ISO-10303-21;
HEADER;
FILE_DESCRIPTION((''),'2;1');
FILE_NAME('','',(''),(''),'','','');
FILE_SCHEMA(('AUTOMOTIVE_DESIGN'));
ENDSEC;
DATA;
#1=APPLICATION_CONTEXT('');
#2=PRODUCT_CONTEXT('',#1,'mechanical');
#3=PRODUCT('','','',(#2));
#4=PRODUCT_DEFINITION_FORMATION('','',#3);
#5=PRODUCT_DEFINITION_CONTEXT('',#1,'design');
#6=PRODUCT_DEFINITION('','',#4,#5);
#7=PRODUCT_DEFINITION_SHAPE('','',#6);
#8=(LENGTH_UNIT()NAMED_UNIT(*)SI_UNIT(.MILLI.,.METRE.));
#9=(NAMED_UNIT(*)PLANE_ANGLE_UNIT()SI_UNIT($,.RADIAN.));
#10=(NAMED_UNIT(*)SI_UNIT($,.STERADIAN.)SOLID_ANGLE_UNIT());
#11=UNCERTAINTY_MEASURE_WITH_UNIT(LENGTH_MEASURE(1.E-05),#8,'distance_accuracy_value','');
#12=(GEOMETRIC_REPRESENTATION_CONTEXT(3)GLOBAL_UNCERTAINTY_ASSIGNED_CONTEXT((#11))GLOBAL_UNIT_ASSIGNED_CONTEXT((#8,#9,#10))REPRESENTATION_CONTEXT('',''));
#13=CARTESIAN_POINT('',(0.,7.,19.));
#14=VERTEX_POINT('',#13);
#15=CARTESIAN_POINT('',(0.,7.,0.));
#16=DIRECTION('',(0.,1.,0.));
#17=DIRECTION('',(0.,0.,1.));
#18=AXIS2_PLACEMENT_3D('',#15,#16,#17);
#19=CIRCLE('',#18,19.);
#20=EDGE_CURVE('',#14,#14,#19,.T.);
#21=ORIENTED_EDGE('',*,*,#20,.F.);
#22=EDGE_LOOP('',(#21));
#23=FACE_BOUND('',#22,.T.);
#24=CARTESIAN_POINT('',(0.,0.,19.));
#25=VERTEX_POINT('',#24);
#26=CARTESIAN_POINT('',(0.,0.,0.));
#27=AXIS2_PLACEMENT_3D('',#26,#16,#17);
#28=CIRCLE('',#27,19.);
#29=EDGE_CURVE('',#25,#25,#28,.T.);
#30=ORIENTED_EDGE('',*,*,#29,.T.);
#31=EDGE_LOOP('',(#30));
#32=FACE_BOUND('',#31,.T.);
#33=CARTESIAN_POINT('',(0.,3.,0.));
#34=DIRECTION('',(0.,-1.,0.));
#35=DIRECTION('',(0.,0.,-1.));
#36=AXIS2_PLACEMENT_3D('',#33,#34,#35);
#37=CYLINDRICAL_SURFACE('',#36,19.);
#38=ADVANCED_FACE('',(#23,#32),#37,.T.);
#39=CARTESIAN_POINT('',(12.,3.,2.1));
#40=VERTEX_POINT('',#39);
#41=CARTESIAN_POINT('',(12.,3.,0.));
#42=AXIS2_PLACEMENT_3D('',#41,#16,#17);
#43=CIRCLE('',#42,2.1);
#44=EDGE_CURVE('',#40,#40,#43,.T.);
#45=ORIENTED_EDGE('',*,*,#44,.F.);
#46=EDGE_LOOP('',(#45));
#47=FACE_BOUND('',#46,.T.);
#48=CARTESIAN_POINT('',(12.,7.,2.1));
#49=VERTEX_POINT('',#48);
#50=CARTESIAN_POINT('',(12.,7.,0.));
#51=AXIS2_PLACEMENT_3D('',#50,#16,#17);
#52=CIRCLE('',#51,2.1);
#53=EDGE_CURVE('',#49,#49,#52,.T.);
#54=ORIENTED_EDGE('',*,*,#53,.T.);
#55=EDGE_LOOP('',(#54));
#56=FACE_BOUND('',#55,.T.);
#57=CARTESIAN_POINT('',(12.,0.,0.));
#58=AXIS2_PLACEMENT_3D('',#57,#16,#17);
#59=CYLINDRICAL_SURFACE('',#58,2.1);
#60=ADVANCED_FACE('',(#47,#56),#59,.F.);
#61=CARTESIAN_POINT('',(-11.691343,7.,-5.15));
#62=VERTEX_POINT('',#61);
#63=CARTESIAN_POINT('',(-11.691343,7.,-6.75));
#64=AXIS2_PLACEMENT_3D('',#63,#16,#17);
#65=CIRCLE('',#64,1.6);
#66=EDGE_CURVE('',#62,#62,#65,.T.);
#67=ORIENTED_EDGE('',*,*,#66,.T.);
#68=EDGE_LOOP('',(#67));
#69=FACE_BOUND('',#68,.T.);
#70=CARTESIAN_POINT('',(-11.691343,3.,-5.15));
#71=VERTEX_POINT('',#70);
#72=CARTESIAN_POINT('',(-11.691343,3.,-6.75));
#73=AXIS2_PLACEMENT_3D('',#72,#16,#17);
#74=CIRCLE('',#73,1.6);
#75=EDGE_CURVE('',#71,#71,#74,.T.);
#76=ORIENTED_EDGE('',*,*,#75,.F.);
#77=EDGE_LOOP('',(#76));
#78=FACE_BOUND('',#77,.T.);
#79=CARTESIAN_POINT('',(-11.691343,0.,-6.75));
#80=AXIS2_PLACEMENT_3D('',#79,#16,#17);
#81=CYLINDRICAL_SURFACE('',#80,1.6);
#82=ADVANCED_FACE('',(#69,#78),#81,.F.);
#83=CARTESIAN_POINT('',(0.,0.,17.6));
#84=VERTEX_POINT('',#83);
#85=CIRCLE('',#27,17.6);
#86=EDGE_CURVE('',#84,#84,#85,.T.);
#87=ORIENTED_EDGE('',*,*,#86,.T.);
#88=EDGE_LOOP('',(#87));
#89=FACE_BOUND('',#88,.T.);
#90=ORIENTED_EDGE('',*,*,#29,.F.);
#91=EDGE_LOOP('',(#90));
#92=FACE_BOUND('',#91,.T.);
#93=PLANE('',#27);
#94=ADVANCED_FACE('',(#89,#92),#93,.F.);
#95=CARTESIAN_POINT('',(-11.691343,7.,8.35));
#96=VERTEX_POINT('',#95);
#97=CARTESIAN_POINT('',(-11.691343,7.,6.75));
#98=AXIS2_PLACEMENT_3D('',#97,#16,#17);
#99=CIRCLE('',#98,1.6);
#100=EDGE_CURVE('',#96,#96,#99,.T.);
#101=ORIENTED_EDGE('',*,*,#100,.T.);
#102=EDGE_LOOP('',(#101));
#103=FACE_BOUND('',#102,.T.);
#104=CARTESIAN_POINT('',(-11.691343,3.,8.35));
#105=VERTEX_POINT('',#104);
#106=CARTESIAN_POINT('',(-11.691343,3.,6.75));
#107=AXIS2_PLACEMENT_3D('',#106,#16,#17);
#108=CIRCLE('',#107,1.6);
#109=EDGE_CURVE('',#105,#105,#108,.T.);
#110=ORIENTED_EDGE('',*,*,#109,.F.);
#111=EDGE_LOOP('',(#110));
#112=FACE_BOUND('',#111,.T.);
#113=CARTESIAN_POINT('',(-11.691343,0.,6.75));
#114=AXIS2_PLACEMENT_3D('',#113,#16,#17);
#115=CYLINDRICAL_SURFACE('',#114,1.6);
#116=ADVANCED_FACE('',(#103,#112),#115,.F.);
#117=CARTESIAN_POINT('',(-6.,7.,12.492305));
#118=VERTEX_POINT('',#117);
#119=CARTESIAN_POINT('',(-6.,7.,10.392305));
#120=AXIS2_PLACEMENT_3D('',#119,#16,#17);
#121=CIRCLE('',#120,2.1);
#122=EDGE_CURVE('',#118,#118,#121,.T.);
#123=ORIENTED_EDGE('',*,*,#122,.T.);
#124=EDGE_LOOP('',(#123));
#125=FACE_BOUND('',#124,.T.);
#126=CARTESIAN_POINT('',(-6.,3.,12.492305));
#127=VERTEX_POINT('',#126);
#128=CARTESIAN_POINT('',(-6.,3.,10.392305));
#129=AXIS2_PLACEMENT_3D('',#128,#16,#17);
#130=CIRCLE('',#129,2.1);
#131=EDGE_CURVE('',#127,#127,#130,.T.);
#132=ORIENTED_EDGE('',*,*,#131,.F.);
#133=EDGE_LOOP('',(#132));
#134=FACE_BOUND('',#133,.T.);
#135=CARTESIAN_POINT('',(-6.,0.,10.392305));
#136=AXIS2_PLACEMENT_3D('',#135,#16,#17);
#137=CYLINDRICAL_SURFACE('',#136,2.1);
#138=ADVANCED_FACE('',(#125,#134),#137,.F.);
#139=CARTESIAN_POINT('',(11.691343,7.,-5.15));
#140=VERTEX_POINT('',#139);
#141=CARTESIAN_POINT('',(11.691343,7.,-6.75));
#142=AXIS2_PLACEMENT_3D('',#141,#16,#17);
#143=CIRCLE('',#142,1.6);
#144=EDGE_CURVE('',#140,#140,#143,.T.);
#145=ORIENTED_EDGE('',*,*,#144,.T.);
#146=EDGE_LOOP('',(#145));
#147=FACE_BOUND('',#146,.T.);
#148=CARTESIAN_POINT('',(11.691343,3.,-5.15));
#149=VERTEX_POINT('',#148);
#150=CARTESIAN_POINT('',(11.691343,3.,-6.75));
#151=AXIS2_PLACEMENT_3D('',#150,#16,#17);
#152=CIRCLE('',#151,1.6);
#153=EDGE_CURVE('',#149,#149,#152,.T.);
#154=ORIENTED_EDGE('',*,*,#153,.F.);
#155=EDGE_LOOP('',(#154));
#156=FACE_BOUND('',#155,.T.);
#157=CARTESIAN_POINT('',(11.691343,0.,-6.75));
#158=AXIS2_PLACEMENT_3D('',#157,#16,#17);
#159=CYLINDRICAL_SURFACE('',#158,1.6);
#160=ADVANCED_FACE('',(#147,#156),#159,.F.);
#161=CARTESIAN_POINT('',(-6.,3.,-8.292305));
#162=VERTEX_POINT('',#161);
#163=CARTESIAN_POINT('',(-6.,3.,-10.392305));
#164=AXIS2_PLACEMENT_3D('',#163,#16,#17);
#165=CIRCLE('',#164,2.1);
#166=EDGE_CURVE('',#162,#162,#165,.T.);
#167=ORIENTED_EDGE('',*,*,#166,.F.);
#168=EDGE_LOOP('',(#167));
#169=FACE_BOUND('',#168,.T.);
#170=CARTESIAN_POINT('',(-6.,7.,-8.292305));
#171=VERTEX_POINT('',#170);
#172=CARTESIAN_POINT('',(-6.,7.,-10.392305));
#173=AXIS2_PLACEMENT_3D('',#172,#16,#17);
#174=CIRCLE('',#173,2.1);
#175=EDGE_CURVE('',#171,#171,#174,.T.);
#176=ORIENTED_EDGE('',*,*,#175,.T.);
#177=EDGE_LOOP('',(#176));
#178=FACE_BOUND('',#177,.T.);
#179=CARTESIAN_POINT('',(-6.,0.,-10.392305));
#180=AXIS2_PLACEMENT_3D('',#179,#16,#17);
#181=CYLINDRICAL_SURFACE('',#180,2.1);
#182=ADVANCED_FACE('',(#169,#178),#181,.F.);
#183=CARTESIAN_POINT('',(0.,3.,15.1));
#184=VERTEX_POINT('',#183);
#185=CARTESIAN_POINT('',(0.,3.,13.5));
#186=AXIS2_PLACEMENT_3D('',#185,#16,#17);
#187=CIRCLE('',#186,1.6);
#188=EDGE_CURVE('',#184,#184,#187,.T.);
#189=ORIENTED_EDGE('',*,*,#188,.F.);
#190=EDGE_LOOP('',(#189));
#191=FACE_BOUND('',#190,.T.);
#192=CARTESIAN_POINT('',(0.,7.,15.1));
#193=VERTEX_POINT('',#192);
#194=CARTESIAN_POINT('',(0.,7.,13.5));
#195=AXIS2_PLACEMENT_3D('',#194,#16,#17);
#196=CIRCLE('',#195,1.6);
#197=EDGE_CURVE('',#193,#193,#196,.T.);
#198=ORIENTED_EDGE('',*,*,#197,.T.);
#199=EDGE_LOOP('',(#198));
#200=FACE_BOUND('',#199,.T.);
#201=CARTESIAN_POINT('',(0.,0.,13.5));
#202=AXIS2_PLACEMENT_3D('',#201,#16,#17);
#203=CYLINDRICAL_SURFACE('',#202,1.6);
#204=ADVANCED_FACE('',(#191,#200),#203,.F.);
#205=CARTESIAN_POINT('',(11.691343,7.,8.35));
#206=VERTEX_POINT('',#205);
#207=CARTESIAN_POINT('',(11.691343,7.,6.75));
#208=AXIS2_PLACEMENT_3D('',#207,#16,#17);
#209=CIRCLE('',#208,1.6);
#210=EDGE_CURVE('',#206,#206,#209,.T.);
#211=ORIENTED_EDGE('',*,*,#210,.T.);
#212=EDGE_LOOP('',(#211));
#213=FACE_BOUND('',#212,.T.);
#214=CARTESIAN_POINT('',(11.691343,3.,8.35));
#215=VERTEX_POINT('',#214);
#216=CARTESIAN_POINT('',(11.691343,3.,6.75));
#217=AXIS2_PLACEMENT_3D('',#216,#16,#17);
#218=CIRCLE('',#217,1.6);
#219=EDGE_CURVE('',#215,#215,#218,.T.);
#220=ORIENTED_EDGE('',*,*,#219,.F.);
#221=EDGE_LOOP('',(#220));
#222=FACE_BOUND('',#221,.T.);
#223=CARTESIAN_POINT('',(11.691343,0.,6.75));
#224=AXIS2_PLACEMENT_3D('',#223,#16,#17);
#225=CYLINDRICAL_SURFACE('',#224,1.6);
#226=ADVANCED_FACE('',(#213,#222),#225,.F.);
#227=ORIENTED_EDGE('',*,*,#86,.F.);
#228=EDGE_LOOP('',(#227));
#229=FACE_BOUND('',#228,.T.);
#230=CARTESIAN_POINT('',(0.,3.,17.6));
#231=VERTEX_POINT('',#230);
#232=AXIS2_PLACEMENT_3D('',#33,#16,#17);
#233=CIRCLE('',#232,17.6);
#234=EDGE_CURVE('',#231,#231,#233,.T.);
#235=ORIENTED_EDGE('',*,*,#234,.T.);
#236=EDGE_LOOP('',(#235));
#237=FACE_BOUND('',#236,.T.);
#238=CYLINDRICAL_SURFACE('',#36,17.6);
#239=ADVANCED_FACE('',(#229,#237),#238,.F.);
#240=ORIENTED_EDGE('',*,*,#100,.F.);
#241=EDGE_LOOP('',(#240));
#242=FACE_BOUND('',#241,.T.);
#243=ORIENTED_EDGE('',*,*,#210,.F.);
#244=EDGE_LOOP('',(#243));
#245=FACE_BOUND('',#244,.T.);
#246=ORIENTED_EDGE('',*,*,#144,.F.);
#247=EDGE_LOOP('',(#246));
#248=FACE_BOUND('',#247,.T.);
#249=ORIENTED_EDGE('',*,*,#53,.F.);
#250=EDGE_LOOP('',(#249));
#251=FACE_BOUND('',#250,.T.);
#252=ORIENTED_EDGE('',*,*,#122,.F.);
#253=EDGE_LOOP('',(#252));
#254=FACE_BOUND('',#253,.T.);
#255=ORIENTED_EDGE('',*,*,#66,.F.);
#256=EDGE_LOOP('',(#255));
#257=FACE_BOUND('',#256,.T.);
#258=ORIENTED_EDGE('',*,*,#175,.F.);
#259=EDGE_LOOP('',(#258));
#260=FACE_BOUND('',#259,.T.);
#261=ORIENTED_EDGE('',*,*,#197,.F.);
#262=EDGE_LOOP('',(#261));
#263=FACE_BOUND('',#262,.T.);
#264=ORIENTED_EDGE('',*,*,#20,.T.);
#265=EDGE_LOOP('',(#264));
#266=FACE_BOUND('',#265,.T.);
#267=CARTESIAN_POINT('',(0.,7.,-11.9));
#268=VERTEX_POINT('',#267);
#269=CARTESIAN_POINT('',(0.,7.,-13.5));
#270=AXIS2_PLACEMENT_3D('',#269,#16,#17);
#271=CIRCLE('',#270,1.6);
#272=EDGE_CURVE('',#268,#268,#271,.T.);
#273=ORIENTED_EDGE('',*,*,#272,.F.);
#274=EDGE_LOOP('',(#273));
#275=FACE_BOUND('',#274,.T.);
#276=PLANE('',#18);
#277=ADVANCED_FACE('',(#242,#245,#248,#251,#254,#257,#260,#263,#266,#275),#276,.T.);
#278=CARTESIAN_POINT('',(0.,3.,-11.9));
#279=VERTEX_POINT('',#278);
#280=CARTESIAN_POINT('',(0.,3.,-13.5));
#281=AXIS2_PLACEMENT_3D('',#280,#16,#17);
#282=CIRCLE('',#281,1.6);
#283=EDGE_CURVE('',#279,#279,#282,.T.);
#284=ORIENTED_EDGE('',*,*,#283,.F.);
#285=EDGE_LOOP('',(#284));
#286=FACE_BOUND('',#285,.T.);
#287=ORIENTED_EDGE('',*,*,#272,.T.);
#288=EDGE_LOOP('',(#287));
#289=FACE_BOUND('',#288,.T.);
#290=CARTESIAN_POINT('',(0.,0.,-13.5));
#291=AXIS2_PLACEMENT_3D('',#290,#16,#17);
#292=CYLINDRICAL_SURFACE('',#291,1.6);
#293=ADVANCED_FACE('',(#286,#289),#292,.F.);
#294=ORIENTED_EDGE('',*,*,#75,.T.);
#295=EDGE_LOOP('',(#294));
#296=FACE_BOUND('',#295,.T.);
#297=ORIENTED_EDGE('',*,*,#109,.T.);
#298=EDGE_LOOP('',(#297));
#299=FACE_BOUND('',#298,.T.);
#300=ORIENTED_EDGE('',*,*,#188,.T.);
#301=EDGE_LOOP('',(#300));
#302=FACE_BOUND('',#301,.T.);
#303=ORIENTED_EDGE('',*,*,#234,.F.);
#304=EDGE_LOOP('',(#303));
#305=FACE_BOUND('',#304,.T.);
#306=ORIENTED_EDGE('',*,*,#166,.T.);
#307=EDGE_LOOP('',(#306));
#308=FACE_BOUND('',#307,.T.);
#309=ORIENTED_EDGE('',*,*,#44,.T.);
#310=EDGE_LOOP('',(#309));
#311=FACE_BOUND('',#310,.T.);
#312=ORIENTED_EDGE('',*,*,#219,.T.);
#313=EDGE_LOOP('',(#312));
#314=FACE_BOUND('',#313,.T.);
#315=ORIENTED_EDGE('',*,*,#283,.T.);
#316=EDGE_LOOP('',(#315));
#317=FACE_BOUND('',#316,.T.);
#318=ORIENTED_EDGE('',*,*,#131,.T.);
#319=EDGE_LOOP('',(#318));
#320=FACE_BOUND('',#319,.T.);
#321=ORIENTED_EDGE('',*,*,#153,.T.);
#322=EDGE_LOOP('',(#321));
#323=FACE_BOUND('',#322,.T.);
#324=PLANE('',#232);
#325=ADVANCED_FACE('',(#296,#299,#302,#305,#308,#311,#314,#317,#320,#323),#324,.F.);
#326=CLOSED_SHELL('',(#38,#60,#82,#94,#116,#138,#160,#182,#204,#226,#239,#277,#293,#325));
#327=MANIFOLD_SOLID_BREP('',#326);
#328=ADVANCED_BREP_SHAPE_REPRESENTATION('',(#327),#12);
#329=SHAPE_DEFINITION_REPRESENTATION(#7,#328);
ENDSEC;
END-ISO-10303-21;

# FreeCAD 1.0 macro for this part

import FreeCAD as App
import Part
import Sketcher
from FreeCAD import Vector

doc = App.newDocument("Part")
body = doc.addObject("PartDesign::Body", "Body")

sketch1 = doc.addObject("Sketcher::SketchObject", "Sketch")
body.addObject(sketch1)
sketch1.AttachmentSupport = (doc.XZ_Plane, [""])
sketch1.MapMode = "FlatFace"
sketch1.addGeometry([
    Part.Circle(Vector(0, 0, 0), Vector(0, 0, 1), 19),
    Part.Circle(Vector(0, 0, 0), Vector(0, 0, 1), 18),
], False)
sketch1.addConstraint([
    Sketcher.Constraint("Coincident", 0, 3, -1, 1),
    Sketcher.Constraint("Coincident", 1, 3, -1, 1),
    Sketcher.Constraint("Diameter", 0, 38.0),
    Sketcher.Constraint("Diameter", 1, 35.2),
])
pad1 = doc.addObject("PartDesign::Pad", "Pad")
body.addObject(pad1)
pad1.Profile = sketch1
pad1.Length = 3
pad1.Reversed = True

sketch2 = doc.addObject("Sketcher::SketchObject", "Sketch001")
body.addObject(sketch2)
sketch2.AttachmentSupport = (doc.XZ_Plane, [""])
sketch2.MapMode = "FlatFace"
sketch2.AttachmentOffset = App.Placement(Vector(0, 0, -3), App.Rotation())
sketch2.addGeometry(Part.Circle(Vector(0, 0, 0), Vector(0, 0, 1), 19), False)
sketch2.addConstraint([
    Sketcher.Constraint("Coincident", 0, 3, -1, 1),
    Sketcher.Constraint("Diameter", 0, 38.0),
])
pad2 = doc.addObject("PartDesign::Pad", "Pad001")
body.addObject(pad2)
pad2.Profile = sketch2
pad2.Length = 4
pad2.Reversed = True

sketch3 = doc.addObject("Sketcher::SketchObject", "Sketch002")
body.addObject(sketch3)
sketch3.AttachmentSupport = (doc.XZ_Plane, [""])
sketch3.MapMode = "FlatFace"
sketch3.AttachmentOffset = App.Placement(Vector(0, 0, -7), App.Rotation())
sketch3.addGeometry([
    Part.Circle(Vector(0, -13.5, 0), Vector(0, 0, 1), 1.6),
    Part.Circle(Vector(11.7, -6.8, 0), Vector(0, 0, 1), 1.6),
    Part.Circle(Vector(11.7, 6.8, 0), Vector(0, 0, 1), 1.6),
    Part.Circle(Vector(0, 13.5, 0), Vector(0, 0, 1), 1.6),
    Part.Circle(Vector(-11.7, 6.8, 0), Vector(0, 0, 1), 1.6),
    Part.Circle(Vector(-11.7, -6.8, 0), Vector(0, 0, 1), 1.6),
    Part.Circle(Vector(12, 0, 0), Vector(0, 0, 1), 2.1),
    Part.Circle(Vector(-6, 10.4, 0), Vector(0, 0, 1), 2.1),
    Part.Circle(Vector(-6, -10.4, 0), Vector(0, 0, 1), 2.1),
], False)
sketch3.addConstraint([
    Sketcher.Constraint("Equal", 0, 1),
    Sketcher.Constraint("Equal", 1, 2),
    Sketcher.Constraint("Equal", 2, 3),
    Sketcher.Constraint("Equal", 3, 4),
    Sketcher.Constraint("Equal", 4, 5),
    Sketcher.Constraint("Equal", 6, 7),
    Sketcher.Constraint("Equal", 7, 8),
    Sketcher.Constraint("Symmetric", 0, 3, 3, 3, -1, 1),
    Sketcher.Constraint("Symmetric", 1, 3, 4, 3, -1, 1),
    Sketcher.Constraint("Symmetric", 2, 3, 5, 3, -1, 1),
    Sketcher.Constraint("Symmetric", 2, 3, 4, 3, -2),
    Sketcher.Constraint("Symmetric", 7, 3, 8, 3, -1),
    Sketcher.Constraint("PointOnObject", 0, 3, -2),
    Sketcher.Constraint("PointOnObject", 6, 3, -1),
    Sketcher.Constraint("Diameter", 0, 3.2),
    Sketcher.Constraint("Diameter", 6, 4.2),
    Sketcher.Constraint("DistanceX", -1, 1, 6, 3, 12.0),
    Sketcher.Constraint("DistanceX", 7, 3, -1, 1, 6.0),
    Sketcher.Constraint("DistanceY", 0, 3, 3, 3, 27.0),
    Sketcher.Constraint("DistanceY", 1, 3, 2, 3, 13.5),
    Sketcher.Constraint("DistanceY", 8, 3, 7, 3, 20.78461),
    Sketcher.Constraint("DistanceX", -1, 1, 1, 3, 11.691343),
])
pocket1 = doc.addObject("PartDesign::Pocket", "Pocket")
body.addObject(pocket1)
pocket1.Profile = sketch3
pocket1.Type = "ThroughAll"
pocket1.Reversed = True

doc.recompute()
